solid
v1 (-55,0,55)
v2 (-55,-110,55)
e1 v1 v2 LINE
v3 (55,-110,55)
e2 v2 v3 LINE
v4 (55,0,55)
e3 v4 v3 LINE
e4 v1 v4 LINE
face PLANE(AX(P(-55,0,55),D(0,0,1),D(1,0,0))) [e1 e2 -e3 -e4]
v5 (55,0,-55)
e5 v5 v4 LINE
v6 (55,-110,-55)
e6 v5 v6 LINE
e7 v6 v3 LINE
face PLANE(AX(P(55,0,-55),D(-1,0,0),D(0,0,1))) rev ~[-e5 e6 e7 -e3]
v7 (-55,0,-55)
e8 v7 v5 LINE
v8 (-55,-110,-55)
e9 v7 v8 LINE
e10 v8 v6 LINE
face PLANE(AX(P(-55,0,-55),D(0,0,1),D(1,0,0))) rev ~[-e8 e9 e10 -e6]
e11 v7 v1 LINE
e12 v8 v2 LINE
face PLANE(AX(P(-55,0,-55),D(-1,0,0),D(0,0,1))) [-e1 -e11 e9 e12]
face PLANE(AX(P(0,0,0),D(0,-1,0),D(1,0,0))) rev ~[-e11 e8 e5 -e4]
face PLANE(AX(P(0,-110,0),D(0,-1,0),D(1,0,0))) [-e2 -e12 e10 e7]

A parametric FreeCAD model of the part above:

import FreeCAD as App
import Part
import Sketcher

V = App.Vector


def add_polygon(sketch, points):
    """Adds a closed chain of lines whose ends are joined by coincident constraints."""
    first, n = sketch.GeometryCount, len(points)
    for a, b in zip(points, points[1:] + points[:1]):
        sketch.addGeometry(Part.LineSegment(App.Vector(*a, 0), App.Vector(*b, 0)), False)
    for i in range(n):
        sketch.addConstraint(Sketcher.Constraint("Coincident", first + i, 2, first + (i + 1) % n, 1))

doc = App.newDocument("Part")
body = doc.addObject("PartDesign::Body", "Body")

# Sketch on XZ plane
sketch1 = doc.addObject("Sketcher::SketchObject", "Sketch")
body.addObject(sketch1)
sketch1.AttachmentSupport = (doc.XZ_Plane, [""])
sketch1.MapMode = "FlatFace"
add_polygon(sketch1, [(-55, 55), (-55, -55), (55, -55), (55, 55)])  # lines 0-3
sketch1.addConstraint([
    Sketcher.Constraint("Vertical", 0),
    Sketcher.Constraint("Horizontal", 1),
    Sketcher.Constraint("Vertical", 2),
    Sketcher.Constraint("Horizontal", 3),
    Sketcher.Constraint("Symmetric", 0, 2, 2, 2, -1, 1),
    Sketcher.Constraint("Equal", 3, 0),
    Sketcher.Constraint("DistanceX", 1, 1, 1, 2, 110.0),
])
pad1 = doc.addObject("PartDesign::Pad", "Pad")
body.addObject(pad1)
pad1.Profile = sketch1
pad1.Length = 110

doc.recompute()
